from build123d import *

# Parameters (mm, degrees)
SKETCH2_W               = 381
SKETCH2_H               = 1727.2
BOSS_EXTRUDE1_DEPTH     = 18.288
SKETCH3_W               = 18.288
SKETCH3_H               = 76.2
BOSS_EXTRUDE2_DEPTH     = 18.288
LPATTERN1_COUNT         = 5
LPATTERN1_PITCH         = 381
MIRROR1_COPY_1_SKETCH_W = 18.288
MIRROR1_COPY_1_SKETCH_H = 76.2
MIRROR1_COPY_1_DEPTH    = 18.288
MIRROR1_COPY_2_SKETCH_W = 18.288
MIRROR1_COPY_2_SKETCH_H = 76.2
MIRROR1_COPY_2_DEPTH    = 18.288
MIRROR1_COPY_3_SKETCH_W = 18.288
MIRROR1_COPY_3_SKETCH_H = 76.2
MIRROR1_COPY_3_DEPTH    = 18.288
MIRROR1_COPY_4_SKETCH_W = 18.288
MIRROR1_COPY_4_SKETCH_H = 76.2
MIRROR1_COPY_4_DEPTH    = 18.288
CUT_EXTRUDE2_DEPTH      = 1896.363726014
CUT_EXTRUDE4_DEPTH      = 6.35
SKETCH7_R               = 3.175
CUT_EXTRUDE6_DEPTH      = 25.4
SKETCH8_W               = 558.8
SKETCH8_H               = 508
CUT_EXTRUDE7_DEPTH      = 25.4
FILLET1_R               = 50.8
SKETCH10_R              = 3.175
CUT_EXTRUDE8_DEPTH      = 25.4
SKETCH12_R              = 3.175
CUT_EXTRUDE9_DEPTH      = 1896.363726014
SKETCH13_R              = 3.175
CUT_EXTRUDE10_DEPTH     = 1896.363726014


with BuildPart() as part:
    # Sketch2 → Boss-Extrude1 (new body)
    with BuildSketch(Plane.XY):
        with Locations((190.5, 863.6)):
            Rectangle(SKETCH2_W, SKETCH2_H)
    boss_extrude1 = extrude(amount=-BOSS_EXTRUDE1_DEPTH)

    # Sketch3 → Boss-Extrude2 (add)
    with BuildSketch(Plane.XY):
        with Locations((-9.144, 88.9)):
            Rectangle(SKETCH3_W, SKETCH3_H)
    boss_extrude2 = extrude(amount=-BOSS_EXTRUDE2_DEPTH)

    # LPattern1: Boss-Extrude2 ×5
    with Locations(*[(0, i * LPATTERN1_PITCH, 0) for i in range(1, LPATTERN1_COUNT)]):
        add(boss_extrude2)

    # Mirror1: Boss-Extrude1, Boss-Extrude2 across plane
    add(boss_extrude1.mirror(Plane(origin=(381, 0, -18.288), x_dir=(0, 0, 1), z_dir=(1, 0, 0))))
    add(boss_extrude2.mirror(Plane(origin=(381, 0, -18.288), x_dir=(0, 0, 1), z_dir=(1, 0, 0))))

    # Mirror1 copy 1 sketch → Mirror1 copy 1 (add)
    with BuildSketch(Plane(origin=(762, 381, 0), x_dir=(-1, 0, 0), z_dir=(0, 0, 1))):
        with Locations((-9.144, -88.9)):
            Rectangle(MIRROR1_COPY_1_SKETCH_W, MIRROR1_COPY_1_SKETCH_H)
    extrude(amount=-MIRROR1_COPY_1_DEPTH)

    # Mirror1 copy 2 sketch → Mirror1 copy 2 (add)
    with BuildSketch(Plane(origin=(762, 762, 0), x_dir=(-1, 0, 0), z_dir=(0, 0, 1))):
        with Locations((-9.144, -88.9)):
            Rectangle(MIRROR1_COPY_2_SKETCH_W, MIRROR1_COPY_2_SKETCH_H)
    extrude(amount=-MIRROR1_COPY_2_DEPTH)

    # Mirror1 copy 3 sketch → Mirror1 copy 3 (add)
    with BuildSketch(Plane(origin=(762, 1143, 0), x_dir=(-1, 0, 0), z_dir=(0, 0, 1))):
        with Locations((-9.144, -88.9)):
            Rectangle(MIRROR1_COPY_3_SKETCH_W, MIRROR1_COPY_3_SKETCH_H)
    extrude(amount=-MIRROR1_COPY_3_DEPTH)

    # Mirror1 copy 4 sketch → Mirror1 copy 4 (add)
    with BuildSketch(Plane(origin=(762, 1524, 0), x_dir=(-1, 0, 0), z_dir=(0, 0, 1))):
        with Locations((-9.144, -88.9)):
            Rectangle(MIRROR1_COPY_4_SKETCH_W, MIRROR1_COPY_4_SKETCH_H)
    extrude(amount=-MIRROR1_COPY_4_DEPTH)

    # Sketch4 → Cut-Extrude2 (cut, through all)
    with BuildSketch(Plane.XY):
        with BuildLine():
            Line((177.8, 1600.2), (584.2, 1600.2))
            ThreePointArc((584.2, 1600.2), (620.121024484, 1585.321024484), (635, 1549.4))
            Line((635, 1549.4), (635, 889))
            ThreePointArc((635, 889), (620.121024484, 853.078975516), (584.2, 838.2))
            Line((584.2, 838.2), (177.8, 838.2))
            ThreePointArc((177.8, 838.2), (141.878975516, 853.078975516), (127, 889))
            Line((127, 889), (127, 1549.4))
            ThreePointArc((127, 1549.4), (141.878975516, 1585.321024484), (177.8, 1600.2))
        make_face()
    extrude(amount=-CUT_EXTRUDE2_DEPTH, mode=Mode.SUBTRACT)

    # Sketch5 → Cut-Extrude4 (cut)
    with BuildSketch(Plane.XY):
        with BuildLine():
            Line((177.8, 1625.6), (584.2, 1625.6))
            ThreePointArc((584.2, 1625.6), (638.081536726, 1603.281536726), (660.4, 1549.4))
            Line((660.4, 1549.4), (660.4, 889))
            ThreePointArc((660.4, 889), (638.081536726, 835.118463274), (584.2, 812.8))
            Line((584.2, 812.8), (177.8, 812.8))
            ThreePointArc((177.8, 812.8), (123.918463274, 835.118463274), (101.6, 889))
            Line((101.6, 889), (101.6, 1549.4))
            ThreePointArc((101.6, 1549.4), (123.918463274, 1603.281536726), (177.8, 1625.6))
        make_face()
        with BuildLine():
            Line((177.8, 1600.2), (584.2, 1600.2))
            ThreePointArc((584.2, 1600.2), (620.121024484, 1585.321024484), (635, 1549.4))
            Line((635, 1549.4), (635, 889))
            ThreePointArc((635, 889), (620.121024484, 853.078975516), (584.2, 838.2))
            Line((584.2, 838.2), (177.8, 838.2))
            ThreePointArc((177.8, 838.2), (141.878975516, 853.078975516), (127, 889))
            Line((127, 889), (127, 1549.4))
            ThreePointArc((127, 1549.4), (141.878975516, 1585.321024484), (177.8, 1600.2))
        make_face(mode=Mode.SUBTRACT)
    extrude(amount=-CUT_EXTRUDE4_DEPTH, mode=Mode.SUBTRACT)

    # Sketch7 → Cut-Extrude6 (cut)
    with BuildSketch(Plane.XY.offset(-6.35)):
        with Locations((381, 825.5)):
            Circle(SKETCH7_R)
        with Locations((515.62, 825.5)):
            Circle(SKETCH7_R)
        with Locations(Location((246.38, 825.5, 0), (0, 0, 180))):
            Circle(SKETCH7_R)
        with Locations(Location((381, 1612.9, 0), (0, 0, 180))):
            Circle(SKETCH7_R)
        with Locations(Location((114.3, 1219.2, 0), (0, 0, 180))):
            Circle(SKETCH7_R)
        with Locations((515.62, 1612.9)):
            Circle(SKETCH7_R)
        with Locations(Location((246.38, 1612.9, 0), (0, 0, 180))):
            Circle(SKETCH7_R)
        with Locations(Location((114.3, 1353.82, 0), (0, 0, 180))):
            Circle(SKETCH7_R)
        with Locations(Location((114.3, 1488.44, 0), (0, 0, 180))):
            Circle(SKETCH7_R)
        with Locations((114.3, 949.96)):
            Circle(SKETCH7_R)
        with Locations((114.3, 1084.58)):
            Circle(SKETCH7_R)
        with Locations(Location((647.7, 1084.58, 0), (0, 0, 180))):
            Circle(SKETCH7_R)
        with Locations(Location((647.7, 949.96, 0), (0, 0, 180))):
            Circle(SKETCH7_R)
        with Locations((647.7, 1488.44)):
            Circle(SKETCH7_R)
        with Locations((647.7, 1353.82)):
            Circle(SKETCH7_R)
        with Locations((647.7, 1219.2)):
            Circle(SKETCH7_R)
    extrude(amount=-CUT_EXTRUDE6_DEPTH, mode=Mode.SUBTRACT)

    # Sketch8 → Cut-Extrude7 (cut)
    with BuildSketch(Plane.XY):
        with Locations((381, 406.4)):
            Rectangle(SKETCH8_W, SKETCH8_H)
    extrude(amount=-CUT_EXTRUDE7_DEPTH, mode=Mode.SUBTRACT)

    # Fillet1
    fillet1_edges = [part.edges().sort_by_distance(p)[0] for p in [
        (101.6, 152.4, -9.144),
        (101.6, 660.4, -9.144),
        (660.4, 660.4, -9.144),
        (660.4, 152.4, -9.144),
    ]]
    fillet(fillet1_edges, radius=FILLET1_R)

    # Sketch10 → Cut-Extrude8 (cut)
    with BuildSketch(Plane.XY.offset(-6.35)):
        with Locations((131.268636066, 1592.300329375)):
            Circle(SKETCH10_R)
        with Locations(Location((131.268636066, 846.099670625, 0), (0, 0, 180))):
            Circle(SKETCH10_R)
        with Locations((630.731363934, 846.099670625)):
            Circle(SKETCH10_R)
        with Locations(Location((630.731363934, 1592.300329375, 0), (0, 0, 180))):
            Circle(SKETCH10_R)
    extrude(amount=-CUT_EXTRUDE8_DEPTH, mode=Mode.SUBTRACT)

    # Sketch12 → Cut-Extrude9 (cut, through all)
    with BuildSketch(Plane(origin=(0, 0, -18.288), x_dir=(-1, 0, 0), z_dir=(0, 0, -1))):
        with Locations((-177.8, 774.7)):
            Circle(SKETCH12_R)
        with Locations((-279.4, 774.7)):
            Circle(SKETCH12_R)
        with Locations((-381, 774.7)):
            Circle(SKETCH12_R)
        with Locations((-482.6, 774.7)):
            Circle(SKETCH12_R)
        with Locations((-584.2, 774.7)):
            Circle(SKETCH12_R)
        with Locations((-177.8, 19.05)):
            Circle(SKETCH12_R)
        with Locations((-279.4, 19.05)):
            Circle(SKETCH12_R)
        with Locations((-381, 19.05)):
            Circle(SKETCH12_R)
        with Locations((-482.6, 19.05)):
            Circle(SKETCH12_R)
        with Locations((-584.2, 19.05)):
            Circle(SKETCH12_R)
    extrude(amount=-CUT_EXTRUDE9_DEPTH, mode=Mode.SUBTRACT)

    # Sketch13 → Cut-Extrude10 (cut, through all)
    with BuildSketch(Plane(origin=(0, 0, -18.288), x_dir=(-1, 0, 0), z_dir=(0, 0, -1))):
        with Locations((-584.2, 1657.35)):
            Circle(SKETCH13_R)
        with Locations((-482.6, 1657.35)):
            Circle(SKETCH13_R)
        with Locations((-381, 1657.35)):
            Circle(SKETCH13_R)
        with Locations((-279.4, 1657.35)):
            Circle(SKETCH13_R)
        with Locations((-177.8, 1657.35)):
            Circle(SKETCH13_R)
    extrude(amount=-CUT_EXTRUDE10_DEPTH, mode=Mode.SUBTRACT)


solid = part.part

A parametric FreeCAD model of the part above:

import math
import FreeCAD as App
import Part
import Sketcher
from FreeCAD import Vector
Q = App.Units.Quantity


def edges_at(feature, points):
    """Names of the edges that pass closest to the given points."""
    edges = feature.Shape.Edges
    near = lambda p: min(range(len(edges)), key=lambda i: edges[i].distToShape(Part.Vertex(*p))[0])
    return sorted({f"Edge{near(p) + 1}" for p in points})

doc = App.newDocument("Part")
body = doc.addObject("PartDesign::Body", "Body")

# Sketch on XY plane
sketch1 = body.newObject("Sketcher::SketchObject", "Sketch")
sketch1.AttachmentSupport = (doc.getObject("XY_Plane"), [""])
sketch1.MapMode = "FlatFace"
sketch1.addGeometry([
    Part.LineSegment(Vector(0, 1727.2, 0), Vector(0, 0, 0)),
    Part.LineSegment(Vector(0, 0, 0), Vector(381, 0, 0)),
    Part.LineSegment(Vector(381, 0, 0), Vector(381, 1727.2, 0)),
    Part.LineSegment(Vector(381, 1727.2, 0), Vector(0, 1727.2, 0)),
], False)
sketch1.addConstraint([
    Sketcher.Constraint("Coincident", 0, 2, 1, 1),
    Sketcher.Constraint("Coincident", 1, 2, 2, 1),
    Sketcher.Constraint("Coincident", 2, 2, 3, 1),
    Sketcher.Constraint("Coincident", 3, 2, 0, 1),
    Sketcher.Constraint("Vertical", 0),
    Sketcher.Constraint("Horizontal", 1),
    Sketcher.Constraint("Vertical", 2),
    Sketcher.Constraint("Horizontal", 3),
    Sketcher.Constraint("Coincident", 0, 2, -1, 1),
    Sketcher.Constraint("DistanceX", 1, 1, 1, 2, Q("15 in")),
    Sketcher.Constraint("DistanceY", 0, 2, 0, 1, Q("68 in")),
])
pad1 = body.newObject("PartDesign::Pad", "Pad")
pad1.Profile = sketch1
pad1.Length = Q("0.72 in")
pad1.Reversed = True

# Sketch on XY plane
sketch2 = body.newObject("Sketcher::SketchObject", "Sketch001")
sketch2.AttachmentSupport = (doc.getObject("XY_Plane"), [""])
sketch2.MapMode = "FlatFace"
sketch2.addGeometry([
    Part.LineSegment(Vector(-18.288, 127, 0), Vector(-18.288, 50.8, 0)),
    Part.LineSegment(Vector(-18.288, 50.8, 0), Vector(0, 50.8, 0)),
    Part.LineSegment(Vector(0, 50.8, 0), Vector(0, 127, 0)),
    Part.LineSegment(Vector(0, 127, 0), Vector(-18.288, 127, 0)),
], False)
sketch2.addConstraint([
    Sketcher.Constraint("Coincident", 0, 2, 1, 1),
    Sketcher.Constraint("Coincident", 1, 2, 2, 1),
    Sketcher.Constraint("Coincident", 2, 2, 3, 1),
    Sketcher.Constraint("Coincident", 3, 2, 0, 1),
    Sketcher.Constraint("Vertical", 0),
    Sketcher.Constraint("Horizontal", 1),
    Sketcher.Constraint("Vertical", 2),
    Sketcher.Constraint("Horizontal", 3),
    Sketcher.Constraint("PointOnObject", 1, 2, -2),
    Sketcher.Constraint("DistanceY", 0, 2, 0, 1, Q("3 in")),
    Sketcher.Constraint("DistanceY", -1, 1, 0, 2, Q("2 in")),
    Sketcher.Constraint("DistanceX", 1, 1, 1, 2, Q("0.72 in")),
])
pad2 = body.newObject("PartDesign::Pad", "Pad001")
pad2.Profile = sketch2
pad2.Length = Q("0.72 in")
pad2.Reversed = True
doc.recompute()

linearpattern = body.newObject("PartDesign::LinearPattern", "LinearPattern")
linearpattern.Originals = [pad2]
linearpattern.Direction = (doc.getObject("Y_Axis"), [""])
linearpattern.Mode = "offset"
linearpattern.Offset = Q("15 in")
linearpattern.Occurrences = 5
body.Tip = linearpattern
doc.recompute()

datumplane = body.newObject("PartDesign::Plane", "DatumPlane")
datumplane.AttachmentSupport = (doc.getObject("YZ_Plane"), [""])
datumplane.MapMode = "FlatFace"
datumplane.AttachmentOffset = App.Placement(Vector(0, 0, 15 * 25.4), App.Rotation())
mirrored = body.newObject("PartDesign::Mirrored", "Mirrored")
mirrored.Originals = [pad1, pad2]
mirrored.MirrorPlane = (datumplane, [""])
body.Tip = mirrored

# Sketch on XY plane
sketch3 = body.newObject("Sketcher::SketchObject", "Sketch002")
sketch3.AttachmentSupport = (doc.getObject("XY_Plane"), [""])
sketch3.MapMode = "FlatFace"
sketch3.addGeometry([
    Part.LineSegment(Vector(780.288, 431.8, 0), Vector(780.288, 508, 0)),
    Part.LineSegment(Vector(780.288, 508, 0), Vector(762, 508, 0)),
    Part.LineSegment(Vector(762, 508, 0), Vector(762, 431.8, 0)),
    Part.LineSegment(Vector(762, 431.8, 0), Vector(780.288, 431.8, 0)),
], False)
sketch3.addConstraint([
    Sketcher.Constraint("Coincident", 0, 2, 1, 1),
    Sketcher.Constraint("Coincident", 1, 2, 2, 1),
    Sketcher.Constraint("Coincident", 2, 2, 3, 1),
    Sketcher.Constraint("Coincident", 3, 2, 0, 1),
    Sketcher.Constraint("Vertical", 0),
    Sketcher.Constraint("Horizontal", 1),
    Sketcher.Constraint("Vertical", 2),
    Sketcher.Constraint("Horizontal", 3),
    Sketcher.Constraint("DistanceY", 0, 1, 0, 2, Q("3 in")),
    Sketcher.Constraint("DistanceY", -1, 1, 0, 2, Q("20 in")),
    Sketcher.Constraint("DistanceX", -1, 1, 1, 2, Q("30 in")),
    Sketcher.Constraint("DistanceX", 1, 2, 1, 1, Q("0.72 in")),
])
pad3 = body.newObject("PartDesign::Pad", "Pad002")
pad3.Profile = sketch3
pad3.Length = Q("0.72 in")
pad3.Reversed = True

# Sketch on XY plane
sketch4 = body.newObject("Sketcher::SketchObject", "Sketch003")
sketch4.AttachmentSupport = (doc.getObject("XY_Plane"), [""])
sketch4.MapMode = "FlatFace"
sketch4.addGeometry([
    Part.LineSegment(Vector(780.288, 812.8, 0), Vector(780.288, 889, 0)),
    Part.LineSegment(Vector(780.288, 889, 0), Vector(762, 889, 0)),
    Part.LineSegment(Vector(762, 889, 0), Vector(762, 812.8, 0)),
    Part.LineSegment(Vector(762, 812.8, 0), Vector(780.288, 812.8, 0)),
], False)
sketch4.addConstraint([
    Sketcher.Constraint("Coincident", 0, 2, 1, 1),
    Sketcher.Constraint("Coincident", 1, 2, 2, 1),
    Sketcher.Constraint("Coincident", 2, 2, 3, 1),
    Sketcher.Constraint("Coincident", 3, 2, 0, 1),
    Sketcher.Constraint("Vertical", 0),
    Sketcher.Constraint("Horizontal", 1),
    Sketcher.Constraint("Vertical", 2),
    Sketcher.Constraint("Horizontal", 3),
    Sketcher.Constraint("DistanceY", 0, 1, 0, 2, Q("3 in")),
    Sketcher.Constraint("DistanceY", -1, 1, 0, 2, Q("35 in")),
    Sketcher.Constraint("DistanceX", -1, 1, 1, 2, Q("30 in")),
    Sketcher.Constraint("DistanceX", 1, 2, 1, 1, Q("0.72 in")),
])
pad4 = body.newObject("PartDesign::Pad", "Pad003")
pad4.Profile = sketch4
pad4.Length = Q("0.72 in")
pad4.Reversed = True

# Sketch on XY plane
sketch5 = body.newObject("Sketcher::SketchObject", "Sketch004")
sketch5.AttachmentSupport = (doc.getObject("XY_Plane"), [""])
sketch5.MapMode = "FlatFace"
sketch5.addGeometry([
    Part.LineSegment(Vector(780.288, 1193.8, 0), Vector(780.288, 1270, 0)),
    Part.LineSegment(Vector(780.288, 1270, 0), Vector(762, 1270, 0)),
    Part.LineSegment(Vector(762, 1270, 0), Vector(762, 1193.8, 0)),
    Part.LineSegment(Vector(762, 1193.8, 0), Vector(780.288, 1193.8, 0)),
], False)
sketch5.addConstraint([
    Sketcher.Constraint("Coincident", 0, 2, 1, 1),
    Sketcher.Constraint("Coincident", 1, 2, 2, 1),
    Sketcher.Constraint("Coincident", 2, 2, 3, 1),
    Sketcher.Constraint("Coincident", 3, 2, 0, 1),
    Sketcher.Constraint("Vertical", 0),
    Sketcher.Constraint("Horizontal", 1),
    Sketcher.Constraint("Vertical", 2),
    Sketcher.Constraint("Horizontal", 3),
    Sketcher.Constraint("DistanceY", 0, 1, 0, 2, Q("3 in")),
    Sketcher.Constraint("DistanceY", -1, 1, 0, 2, Q("50 in")),
    Sketcher.Constraint("DistanceX", -1, 1, 1, 2, Q("30 in")),
    Sketcher.Constraint("DistanceX", 1, 2, 1, 1, Q("0.72 in")),
])
pad5 = body.newObject("PartDesign::Pad", "Pad004")
pad5.Profile = sketch5
pad5.Length = Q("0.72 in")
pad5.Reversed = True

# Sketch on XY plane
sketch6 = body.newObject("Sketcher::SketchObject", "Sketch005")
sketch6.AttachmentSupport = (doc.getObject("XY_Plane"), [""])
sketch6.MapMode = "FlatFace"
sketch6.addGeometry([
    Part.LineSegment(Vector(780.288, 1574.8, 0), Vector(780.288, 1651, 0)),
    Part.LineSegment(Vector(780.288, 1651, 0), Vector(762, 1651, 0)),
    Part.LineSegment(Vector(762, 1651, 0), Vector(762, 1574.8, 0)),
    Part.LineSegment(Vector(762, 1574.8, 0), Vector(780.288, 1574.8, 0)),
], False)
sketch6.addConstraint([
    Sketcher.Constraint("Coincident", 0, 2, 1, 1),
    Sketcher.Constraint("Coincident", 1, 2, 2, 1),
    Sketcher.Constraint("Coincident", 2, 2, 3, 1),
    Sketcher.Constraint("Coincident", 3, 2, 0, 1),
    Sketcher.Constraint("Vertical", 0),
    Sketcher.Constraint("Horizontal", 1),
    Sketcher.Constraint("Vertical", 2),
    Sketcher.Constraint("Horizontal", 3),
    Sketcher.Constraint("DistanceY", 0, 1, 0, 2, Q("3 in")),
    Sketcher.Constraint("DistanceY", -1, 1, 0, 2, Q("65 in")),
    Sketcher.Constraint("DistanceX", -1, 1, 1, 2, Q("30 in")),
    Sketcher.Constraint("DistanceX", 1, 2, 1, 1, Q("0.72 in")),
])
pad6 = body.newObject("PartDesign::Pad", "Pad005")
pad6.Profile = sketch6
pad6.Length = Q("0.72 in")
pad6.Reversed = True

# Sketch on XY plane
sketch7 = body.newObject("Sketcher::SketchObject", "Sketch006")
sketch7.AttachmentSupport = (doc.getObject("XY_Plane"), [""])
sketch7.MapMode = "FlatFace"
sketch7.addGeometry([
    Part.LineSegment(Vector(584.2, 1600.2, 0), Vector(177.8, 1600.2, 0)),  # 0
    Part.ArcOfCircle(Part.Circle(Vector(177.8, 1549.4, 0), Vector(0, 0, 1), 50.8), math.radians(90), math.radians(180)),  # 1
    Part.LineSegment(Vector(127, 1549.4, 0), Vector(127, 889, 0)),  # 2
    Part.ArcOfCircle(Part.Circle(Vector(177.8, 889, 0), Vector(0, 0, 1), 50.8), math.radians(-180), math.radians(-90)),  # 3
    Part.LineSegment(Vector(177.8, 838.2, 0), Vector(584.2, 838.2, 0)),  # 4
    Part.ArcOfCircle(Part.Circle(Vector(584.2, 889, 0), Vector(0, 0, 1), 50.8), math.radians(-90), math.radians(0)),  # 5
    Part.LineSegment(Vector(635, 889, 0), Vector(635, 1549.4, 0)),  # 6
    Part.ArcOfCircle(Part.Circle(Vector(584.2, 1549.4, 0), Vector(0, 0, 1), 50.8), math.radians(0), math.radians(90)),  # 7
], False)
sketch7.addConstraint([
    Sketcher.Constraint("Tangent", 0, 2, 1, 1),
    Sketcher.Constraint("Tangent", 1, 2, 2, 1),
    Sketcher.Constraint("Tangent", 2, 2, 3, 1),
    Sketcher.Constraint("Tangent", 3, 2, 4, 1),
    Sketcher.Constraint("Tangent", 4, 2, 5, 1),
    Sketcher.Constraint("Tangent", 5, 2, 6, 1),
    Sketcher.Constraint("Tangent", 6, 2, 7, 1),
    Sketcher.Constraint("Tangent", 7, 2, 0, 1),
    Sketcher.Constraint("Horizontal", 0),
    Sketcher.Constraint("Vertical", 2),
    Sketcher.Constraint("Horizontal", 4),
    Sketcher.Constraint("Vertical", 6),
    Sketcher.Constraint("Equal", 1, 3),
    Sketcher.Constraint("Equal", 3, 5),
    Sketcher.Constraint("Equal", 5, 7),
    Sketcher.Constraint("Radius", 1, Q("2 in")),
    Sketcher.Constraint("DistanceX", 0, 2, 0, 1, Q("16 in")),
    Sketcher.Constraint("DistanceY", 2, 2, 2, 1, Q("26 in")),
    Sketcher.Constraint("DistanceX", -1, 1, 1, 3, Q("7 in")),
    Sketcher.Constraint("DistanceY", -1, 1, 1, 3, Q("61 in")),
])
pocket1 = body.newObject("PartDesign::Pocket", "Pocket")
pocket1.Profile = sketch7
pocket1.Type = "ThroughAll"

# Sketch on XY plane
sketch8 = body.newObject("Sketcher::SketchObject", "Sketch007")
sketch8.AttachmentSupport = (doc.getObject("XY_Plane"), [""])
sketch8.MapMode = "FlatFace"
sketch8.addGeometry([
    Part.LineSegment(Vector(584.2, 1625.6, 0), Vector(177.8, 1625.6, 0)),  # 0
    Part.ArcOfCircle(Part.Circle(Vector(177.8, 1549.4, 0), Vector(0, 0, 1), 76.2), math.radians(90), math.radians(180)),  # 1
    Part.LineSegment(Vector(101.6, 1549.4, 0), Vector(101.6, 889, 0)),  # 2
    Part.ArcOfCircle(Part.Circle(Vector(177.8, 889, 0), Vector(0, 0, 1), 76.2), math.radians(-180), math.radians(-90)),  # 3
    Part.LineSegment(Vector(177.8, 812.8, 0), Vector(584.2, 812.8, 0)),  # 4
    Part.ArcOfCircle(Part.Circle(Vector(584.2, 889, 0), Vector(0, 0, 1), 76.2), math.radians(-90), math.radians(0)),  # 5
    Part.LineSegment(Vector(660.4, 889, 0), Vector(660.4, 1549.4, 0)),  # 6
    Part.ArcOfCircle(Part.Circle(Vector(584.2, 1549.4, 0), Vector(0, 0, 1), 76.2), math.radians(0), math.radians(90)),  # 7
    Part.LineSegment(Vector(177.8, 1600.2, 0), Vector(584.2, 1600.2, 0)),  # 8
    Part.ArcOfCircle(Part.Circle(Vector(584.2, 1549.4, 0), Vector(0, 0, 1), 50.8), math.radians(0), math.radians(90)),  # 9
    Part.LineSegment(Vector(635, 1549.4, 0), Vector(635, 889, 0)),  # 10
    Part.ArcOfCircle(Part.Circle(Vector(584.2, 889, 0), Vector(0, 0, 1), 50.8), math.radians(-90), math.radians(0)),  # 11
    Part.LineSegment(Vector(584.2, 838.2, 0), Vector(177.8, 838.2, 0)),  # 12
    Part.ArcOfCircle(Part.Circle(Vector(177.8, 889, 0), Vector(0, 0, 1), 50.8), math.radians(-180), math.radians(-90)),  # 13
    Part.LineSegment(Vector(127, 889, 0), Vector(127, 1549.4, 0)),  # 14
    Part.ArcOfCircle(Part.Circle(Vector(177.8, 1549.4, 0), Vector(0, 0, 1), 50.8), math.radians(90), math.radians(180)),  # 15
], False)
sketch8.addConstraint([
    Sketcher.Constraint("Tangent", 0, 2, 1, 1),
    Sketcher.Constraint("Tangent", 1, 2, 2, 1),
    Sketcher.Constraint("Tangent", 2, 2, 3, 1),
    Sketcher.Constraint("Tangent", 3, 2, 4, 1),
    Sketcher.Constraint("Tangent", 4, 2, 5, 1),
    Sketcher.Constraint("Tangent", 5, 2, 6, 1),
    Sketcher.Constraint("Tangent", 6, 2, 7, 1),
    Sketcher.Constraint("Tangent", 7, 2, 0, 1),
    Sketcher.Constraint("Tangent", 8, 2, 9, 2),
    Sketcher.Constraint("Tangent", 9, 1, 10, 1),
    Sketcher.Constraint("Tangent", 10, 2, 11, 2),
    Sketcher.Constraint("Tangent", 11, 1, 12, 1),
    Sketcher.Constraint("Tangent", 12, 2, 13, 2),
    Sketcher.Constraint("Tangent", 13, 1, 14, 1),
    Sketcher.Constraint("Tangent", 14, 2, 15, 2),
    Sketcher.Constraint("Tangent", 15, 1, 8, 1),
    Sketcher.Constraint("Horizontal", 0),
    Sketcher.Constraint("Vertical", 2),
    Sketcher.Constraint("Horizontal", 4),
    Sketcher.Constraint("Vertical", 6),
    Sketcher.Constraint("Horizontal", 8),
    Sketcher.Constraint("Vertical", 10),
    Sketcher.Constraint("Horizontal", 12),
    Sketcher.Constraint("Vertical", 14),
    Sketcher.Constraint("Coincident", 9, 3, 7, 3),
    Sketcher.Constraint("Coincident", 11, 3, 5, 3),
    Sketcher.Constraint("Coincident", 13, 3, 3, 3),
    Sketcher.Constraint("Equal", 1, 3),
    Sketcher.Constraint("Equal", 3, 5),
    Sketcher.Constraint("Equal", 5, 7),
    Sketcher.Constraint("Equal", 13, 15),
    Sketcher.Constraint("Radius", 1, Q("3 in")),
    Sketcher.Constraint("Radius", 9, Q("2 in")),
    Sketcher.Constraint("DistanceX", 0, 2, 0, 1, Q("16 in")),
    Sketcher.Constraint("DistanceY", 2, 2, 2, 1, Q("26 in")),
    Sketcher.Constraint("DistanceX", -1, 1, 1, 3, Q("7 in")),
    Sketcher.Constraint("DistanceY", -1, 1, 1, 3, Q("61 in")),
])
pocket2 = body.newObject("PartDesign::Pocket", "Pocket001")
pocket2.Profile = sketch8
pocket2.Length = Q("0.25 in")

# Sketch on XY plane
sketch9 = body.newObject("Sketcher::SketchObject", "Sketch008")
sketch9.AttachmentSupport = (doc.getObject("XY_Plane"), [""])
sketch9.MapMode = "FlatFace"
sketch9.AttachmentOffset = App.Placement(Vector(0, 0, -0.25 * 25.4), App.Rotation())
sketch9.addGeometry([
    Part.Circle(Vector(381, 825.5, 0), Vector(0, 0, 1), 3.175),  # 0
    Part.Circle(Vector(515.62, 825.5, 0), Vector(0, 0, 1), 3.175),  # 1
    Part.Circle(Vector(246.38, 825.5, 0), Vector(0, 0, 1), 3.175),  # 2
    Part.Circle(Vector(381, 1612.9, 0), Vector(0, 0, 1), 3.175),  # 3
    Part.Circle(Vector(114.3, 1219.2, 0), Vector(0, 0, 1), 3.175),  # 4
    Part.Circle(Vector(515.62, 1612.9, 0), Vector(0, 0, 1), 3.175),  # 5
    Part.Circle(Vector(246.38, 1612.9, 0), Vector(0, 0, 1), 3.175),  # 6
    Part.Circle(Vector(114.3, 1353.82, 0), Vector(0, 0, 1), 3.175),  # 7
    Part.Circle(Vector(114.3, 1488.44, 0), Vector(0, 0, 1), 3.175),  # 8
    Part.Circle(Vector(114.3, 949.96, 0), Vector(0, 0, 1), 3.175),  # 9
    Part.Circle(Vector(114.3, 1084.58, 0), Vector(0, 0, 1), 3.175),  # 10
    Part.Circle(Vector(647.7, 1084.58, 0), Vector(0, 0, 1), 3.175),  # 11
    Part.Circle(Vector(647.7, 949.96, 0), Vector(0, 0, 1), 3.175),  # 12
    Part.Circle(Vector(647.7, 1488.44, 0), Vector(0, 0, 1), 3.175),  # 13
    Part.Circle(Vector(647.7, 1353.82, 0), Vector(0, 0, 1), 3.175),  # 14
    Part.Circle(Vector(647.7, 1219.2, 0), Vector(0, 0, 1), 3.175),  # 15
], False)
sketch9.addConstraint([
    Sketcher.Constraint("Equal", 0, 1),
    Sketcher.Constraint("Equal", 1, 2),
    Sketcher.Constraint("Equal", 2, 3),
    Sketcher.Constraint("Equal", 3, 4),
    Sketcher.Constraint("Equal", 4, 5),
    Sketcher.Constraint("Equal", 5, 6),
    Sketcher.Constraint("Equal", 6, 7),
    Sketcher.Constraint("Equal", 7, 8),
    Sketcher.Constraint("Equal", 8, 9),
    Sketcher.Constraint("Equal", 9, 10),
    Sketcher.Constraint("Equal", 10, 11),
    Sketcher.Constraint("Equal", 11, 12),
    Sketcher.Constraint("Equal", 12, 13),
    Sketcher.Constraint("Equal", 13, 14),
    Sketcher.Constraint("Equal", 14, 15),
    Sketcher.Constraint("Horizontal", 0, 3, 1, 3),
    Sketcher.Constraint("Horizontal", 1, 3, 2, 3),
    Sketcher.Constraint("Horizontal", 3, 3, 5, 3),
    Sketcher.Constraint("Horizontal", 5, 3, 6, 3),
    Sketcher.Constraint("Horizontal", 10, 3, 11, 3),
    Sketcher.Constraint("Horizontal", 9, 3, 12, 3),
    Sketcher.Constraint("Horizontal", 8, 3, 13, 3),
    Sketcher.Constraint("Horizontal", 7, 3, 14, 3),
    Sketcher.Constraint("Horizontal", 4, 3, 15, 3),
    Sketcher.Constraint("Vertical", 0, 3, 3, 3),
    Sketcher.Constraint("Vertical", 1, 3, 5, 3),
    Sketcher.Constraint("Vertical", 2, 3, 6, 3),
    Sketcher.Constraint("Vertical", 4, 3, 7, 3),
    Sketcher.Constraint("Vertical", 7, 3, 8, 3),
    Sketcher.Constraint("Vertical", 8, 3, 9, 3),
    Sketcher.Constraint("Vertical", 9, 3, 10, 3),
    Sketcher.Constraint("Vertical", 11, 3, 12, 3),
    Sketcher.Constraint("Vertical", 12, 3, 13, 3),
    Sketcher.Constraint("Vertical", 13, 3, 14, 3),
    Sketcher.Constraint("Vertical", 14, 3, 15, 3),
    Sketcher.Constraint("Diameter", 0, Q("0.25 in")),
    Sketcher.Constraint("DistanceX", -1, 1, 0, 3, Q("15 in")),
    Sketcher.Constraint("DistanceY", -1, 1, 4, 3, Q("48 in")),
    Sketcher.Constraint("DistanceY", 0, 3, 3, 3, Q("31 in")),
    Sketcher.Constraint("DistanceX", 10, 3, 11, 3, Q("21 in")),
    Sketcher.Constraint("DistanceY", -1, 1, 0, 3, Q("32.5 in")),
    Sketcher.Constraint("DistanceX", -1, 1, 1, 3, Q("20.3 in")),
    Sketcher.Constraint("DistanceX", -1, 1, 2, 3, Q("9.7 in")),
    Sketcher.Constraint("DistanceX", -1, 1, 4, 3, Q("4.5 in")),
    Sketcher.Constraint("DistanceY", -1, 1, 7, 3, Q("53.3 in")),
    Sketcher.Constraint("DistanceY", -1, 1, 8, 3, Q("58.6 in")),
    Sketcher.Constraint("DistanceY", -1, 1, 9, 3, Q("37.4 in")),
    Sketcher.Constraint("DistanceY", -1, 1, 10, 3, Q("42.7 in")),
])
pocket3 = body.newObject("PartDesign::Pocket", "Pocket002")
pocket3.Profile = sketch9
pocket3.Length = Q("1 in")

# Sketch on XY plane
sketch10 = body.newObject("Sketcher::SketchObject", "Sketch009")
sketch10.AttachmentSupport = (doc.getObject("XY_Plane"), [""])
sketch10.MapMode = "FlatFace"
sketch10.addGeometry([
    Part.LineSegment(Vector(101.6, 660.4, 0), Vector(101.6, 152.4, 0)),
    Part.LineSegment(Vector(101.6, 152.4, 0), Vector(660.4, 152.4, 0)),
    Part.LineSegment(Vector(660.4, 152.4, 0), Vector(660.4, 660.4, 0)),
    Part.LineSegment(Vector(660.4, 660.4, 0), Vector(101.6, 660.4, 0)),
], False)
sketch10.addConstraint([
    Sketcher.Constraint("Coincident", 0, 2, 1, 1),
    Sketcher.Constraint("Coincident", 1, 2, 2, 1),
    Sketcher.Constraint("Coincident", 2, 2, 3, 1),
    Sketcher.Constraint("Coincident", 3, 2, 0, 1),
    Sketcher.Constraint("Vertical", 0),
    Sketcher.Constraint("Horizontal", 1),
    Sketcher.Constraint("Vertical", 2),
    Sketcher.Constraint("Horizontal", 3),
    Sketcher.Constraint("DistanceX", 1, 1, 1, 2, Q("22 in")),
    Sketcher.Constraint("DistanceY", 0, 2, 0, 1, Q("20 in")),
    Sketcher.Constraint("DistanceX", -1, 1, 0, 2, Q("4 in")),
    Sketcher.Constraint("DistanceY", -1, 1, 0, 2, Q("6 in")),
])
pocket4 = body.newObject("PartDesign::Pocket", "Pocket003")
pocket4.Profile = sketch10
pocket4.Length = Q("1 in")
doc.recompute()

fillet = body.newObject("PartDesign::Fillet", "Fillet")
fillet.Base = (pocket4, edges_at(pocket4, [
    (101.6, 152.4, -9.144),
    (101.6, 660.4, -9.144),
    (660.4, 660.4, -9.144),
    (660.4, 152.4, -9.144),
]))
fillet.Radius = Q("2 in")

# Sketch on XY plane
sketch11 = body.newObject("Sketcher::SketchObject", "Sketch010")
sketch11.AttachmentSupport = (doc.getObject("XY_Plane"), [""])
sketch11.MapMode = "FlatFace"
sketch11.AttachmentOffset = App.Placement(Vector(0, 0, -0.25 * 25.4), App.Rotation())
sketch11.addGeometry([
    Part.Circle(Vector(131.268636, 1592.300329, 0), Vector(0, 0, 1), 3.175),
    Part.Circle(Vector(131.268636, 846.099671, 0), Vector(0, 0, 1), 3.175),
    Part.Circle(Vector(630.731364, 846.099671, 0), Vector(0, 0, 1), 3.175),
    Part.Circle(Vector(630.731364, 1592.300329, 0), Vector(0, 0, 1), 3.175),
], False)
sketch11.addConstraint([
    Sketcher.Constraint("Equal", 0, 1),
    Sketcher.Constraint("Equal", 1, 2),
    Sketcher.Constraint("Equal", 2, 3),
    Sketcher.Constraint("Horizontal", 1, 3, 2, 3),
    Sketcher.Constraint("Horizontal", 0, 3, 3, 3),
    Sketcher.Constraint("Vertical", 0, 3, 1, 3),
    Sketcher.Constraint("Vertical", 2, 3, 3, 3),
    Sketcher.Constraint("Diameter", 0, Q("0.25 in")),
    Sketcher.Constraint("DistanceY", -1, 1, 0, 3, 1592.300329),
    Sketcher.Constraint("DistanceY", -1, 1, 1, 3, 846.099671),
    Sketcher.Constraint("DistanceX", -1, 1, 0, 3, 131.268636),
    Sketcher.Constraint("DistanceX", -1, 1, 2, 3, 630.731364),
])
pocket5 = body.newObject("PartDesign::Pocket", "Pocket004")
pocket5.Profile = sketch11
pocket5.Length = Q("1 in")

# Sketch on XY plane
sketch12 = body.newObject("Sketcher::SketchObject", "Sketch011")
sketch12.AttachmentSupport = (doc.getObject("XY_Plane"), [""])
sketch12.MapMode = "FlatFace"
sketch12.AttachmentOffset = App.Placement(Vector(0, 0, -0.72 * 25.4), App.Rotation())
sketch12.addGeometry([
    Part.Circle(Vector(177.8, 774.7, 0), Vector(0, 0, 1), 3.175),  # 0
    Part.Circle(Vector(279.4, 774.7, 0), Vector(0, 0, 1), 3.175),  # 1
    Part.Circle(Vector(381, 774.7, 0), Vector(0, 0, 1), 3.175),  # 2
    Part.Circle(Vector(482.6, 774.7, 0), Vector(0, 0, 1), 3.175),  # 3
    Part.Circle(Vector(584.2, 774.7, 0), Vector(0, 0, 1), 3.175),  # 4
    Part.Circle(Vector(177.8, 19.05, 0), Vector(0, 0, 1), 3.175),  # 5
    Part.Circle(Vector(279.4, 19.05, 0), Vector(0, 0, 1), 3.175),  # 6
    Part.Circle(Vector(381, 19.05, 0), Vector(0, 0, 1), 3.175),  # 7
    Part.Circle(Vector(482.6, 19.05, 0), Vector(0, 0, 1), 3.175),  # 8
    Part.Circle(Vector(584.2, 19.05, 0), Vector(0, 0, 1), 3.175),  # 9
], False)
sketch12.addConstraint([
    Sketcher.Constraint("Equal", 0, 1),
    Sketcher.Constraint("Equal", 1, 2),
    Sketcher.Constraint("Equal", 2, 3),
    Sketcher.Constraint("Equal", 3, 4),
    Sketcher.Constraint("Equal", 4, 5),
    Sketcher.Constraint("Equal", 5, 6),
    Sketcher.Constraint("Equal", 6, 7),
    Sketcher.Constraint("Equal", 7, 8),
    Sketcher.Constraint("Equal", 8, 9),
    Sketcher.Constraint("Horizontal", 0, 3, 1, 3),
    Sketcher.Constraint("Horizontal", 1, 3, 2, 3),
    Sketcher.Constraint("Horizontal", 2, 3, 3, 3),
    Sketcher.Constraint("Horizontal", 3, 3, 4, 3),
    Sketcher.Constraint("Horizontal", 5, 3, 6, 3),
    Sketcher.Constraint("Horizontal", 6, 3, 7, 3),
    Sketcher.Constraint("Horizontal", 7, 3, 8, 3),
    Sketcher.Constraint("Horizontal", 8, 3, 9, 3),
    Sketcher.Constraint("Vertical", 0, 3, 5, 3),
    Sketcher.Constraint("Vertical", 1, 3, 6, 3),
    Sketcher.Constraint("Vertical", 2, 3, 7, 3),
    Sketcher.Constraint("Vertical", 3, 3, 8, 3),
    Sketcher.Constraint("Vertical", 4, 3, 9, 3),
    Sketcher.Constraint("Diameter", 0, Q("0.25 in")),
    Sketcher.Constraint("DistanceX", -1, 1, 0, 3, Q("7 in")),
    Sketcher.Constraint("DistanceX", -1, 1, 1, 3, Q("11 in")),
    Sketcher.Constraint("DistanceX", -1, 1, 2, 3, Q("15 in")),
    Sketcher.Constraint("DistanceX", -1, 1, 3, 3, Q("19 in")),
    Sketcher.Constraint("DistanceX", -1, 1, 4, 3, Q("23 in")),
    Sketcher.Constraint("DistanceY", -1, 1, 0, 3, Q("30.5 in")),
    Sketcher.Constraint("DistanceY", -1, 1, 5, 3, Q("0.75 in")),
])
pocket6 = body.newObject("PartDesign::Pocket", "Pocket005")
pocket6.Profile = sketch12
pocket6.Type = "ThroughAll"
pocket6.Reversed = True

# Sketch on XY plane
sketch13 = body.newObject("Sketcher::SketchObject", "Sketch012")
sketch13.AttachmentSupport = (doc.getObject("XY_Plane"), [""])
sketch13.MapMode = "FlatFace"
sketch13.AttachmentOffset = App.Placement(Vector(0, 0, -0.72 * 25.4), App.Rotation())
sketch13.addGeometry([
    Part.Circle(Vector(584.2, 1657.35, 0), Vector(0, 0, 1), 3.175),  # 0
    Part.Circle(Vector(482.6, 1657.35, 0), Vector(0, 0, 1), 3.175),  # 1
    Part.Circle(Vector(381, 1657.35, 0), Vector(0, 0, 1), 3.175),  # 2
    Part.Circle(Vector(279.4, 1657.35, 0), Vector(0, 0, 1), 3.175),  # 3
    Part.Circle(Vector(177.8, 1657.35, 0), Vector(0, 0, 1), 3.175),  # 4
], False)
sketch13.addConstraint([
    Sketcher.Constraint("Equal", 0, 1),
    Sketcher.Constraint("Equal", 1, 2),
    Sketcher.Constraint("Equal", 2, 3),
    Sketcher.Constraint("Equal", 3, 4),
    Sketcher.Constraint("Horizontal", 0, 3, 1, 3),
    Sketcher.Constraint("Horizontal", 1, 3, 2, 3),
    Sketcher.Constraint("Horizontal", 2, 3, 3, 3),
    Sketcher.Constraint("Horizontal", 3, 3, 4, 3),
    Sketcher.Constraint("Diameter", 0, Q("0.25 in")),
    Sketcher.Constraint("DistanceX", -1, 1, 0, 3, Q("23 in")),
    Sketcher.Constraint("DistanceX", -1, 1, 1, 3, Q("19 in")),
    Sketcher.Constraint("DistanceX", -1, 1, 2, 3, Q("15 in")),
    Sketcher.Constraint("DistanceX", -1, 1, 3, 3, Q("11 in")),
    Sketcher.Constraint("DistanceX", -1, 1, 4, 3, Q("7 in")),
    Sketcher.Constraint("DistanceY", -1, 1, 0, 3, Q("65.25 in")),
])
pocket7 = body.newObject("PartDesign::Pocket", "Pocket006")
pocket7.Profile = sketch13
pocket7.Type = "ThroughAll"
pocket7.Reversed = True

doc.recompute()
